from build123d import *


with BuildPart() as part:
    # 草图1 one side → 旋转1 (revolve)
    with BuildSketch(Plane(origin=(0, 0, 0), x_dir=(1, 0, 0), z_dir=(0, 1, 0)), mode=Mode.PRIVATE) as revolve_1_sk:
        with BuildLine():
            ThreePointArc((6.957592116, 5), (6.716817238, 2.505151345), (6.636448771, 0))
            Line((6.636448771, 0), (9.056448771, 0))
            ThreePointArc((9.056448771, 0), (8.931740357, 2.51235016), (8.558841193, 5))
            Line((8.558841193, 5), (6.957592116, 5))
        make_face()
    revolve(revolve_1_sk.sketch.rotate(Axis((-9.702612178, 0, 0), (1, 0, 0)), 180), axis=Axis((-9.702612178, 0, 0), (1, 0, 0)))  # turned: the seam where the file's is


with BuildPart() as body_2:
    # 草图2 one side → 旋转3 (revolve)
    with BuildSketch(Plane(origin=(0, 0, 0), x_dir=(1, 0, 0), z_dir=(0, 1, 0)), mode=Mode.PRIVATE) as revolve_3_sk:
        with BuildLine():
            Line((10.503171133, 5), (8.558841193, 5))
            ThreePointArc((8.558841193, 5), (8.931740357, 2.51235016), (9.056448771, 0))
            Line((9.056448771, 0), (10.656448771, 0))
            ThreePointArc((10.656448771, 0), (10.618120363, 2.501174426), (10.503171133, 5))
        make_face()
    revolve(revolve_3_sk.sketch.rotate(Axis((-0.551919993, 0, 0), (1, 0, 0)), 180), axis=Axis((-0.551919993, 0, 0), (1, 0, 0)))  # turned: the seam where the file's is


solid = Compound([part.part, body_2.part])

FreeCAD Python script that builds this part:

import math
import FreeCAD as App
import Part
import Sketcher
from FreeCAD import Vector

doc = App.newDocument("Part")
body = doc.addObject("PartDesign::Body", "Body")

# Sketch on XZ plane
sketch1 = doc.addObject("Sketcher::SketchObject", "Sketch")
body.addObject(sketch1)
sketch1.AttachmentSupport = (doc.XZ_Plane, [""])
sketch1.MapMode = "FlatFace"
sketch1.addGeometry([
    Part.ArcOfCircle(Part.Circle(Vector(45.7, 0, 0), Vector(0, 0, 1), 39.1), math.radians(180), math.radians(187.35)),
    Part.LineSegment(Vector(6.6, 0, 0), Vector(9.1, 0, 0)),
    Part.ArcOfCircle(Part.Circle(Vector(-16.3, 0, 0), Vector(0, 0, 1), 25.4), math.radians(-11.37), math.radians(0)),
    Part.LineSegment(Vector(8.6, -5, 0), Vector(7, -5, 0)),
], False)
sketch1.addConstraint([
    Sketcher.Constraint("Coincident", 0, 1, 1, 1),
    Sketcher.Constraint("Coincident", 1, 2, 2, 2),
    Sketcher.Constraint("Coincident", 2, 1, 3, 1),
    Sketcher.Constraint("Coincident", 3, 2, 0, 2),
    Sketcher.Constraint("Horizontal", 1),
    Sketcher.Constraint("Horizontal", 3),
    Sketcher.Constraint("PointOnObject", 0, 3, -1),
    Sketcher.Constraint("PointOnObject", 2, 3, -1),
    Sketcher.Constraint("PointOnObject", 0, 1, -1),
    Sketcher.Constraint("DistanceY", 2, 1, -1, 1, 5.0),
    Sketcher.Constraint("Radius", 0, 39.084),
    Sketcher.Constraint("Radius", 2, 25.369),
    Sketcher.Constraint("DistanceX", 1, 1, 1, 2, 2.42),
    Sketcher.Constraint("DistanceX", -1, 1, 0, 3, 45.720449),
])
revolution = doc.addObject("PartDesign::Revolution", "Revolution")
body.addObject(revolution)
revolution.Profile = sketch1
revolution.ReferenceAxis = (sketch1, ["H_Axis"])
revolution.Angle = 360
body2 = doc.addObject("PartDesign::Body", "Body001")

# Sketch on XZ plane
sketch2 = doc.addObject("Sketcher::SketchObject", "Sketch001")
body2.addObject(sketch2)
sketch2.AttachmentSupport = (doc.getObject("XZ_Plane001"), [""])
sketch2.MapMode = "FlatFace"
sketch2.addGeometry([
    Part.LineSegment(Vector(10.5, -5, 0), Vector(8.6, -5, 0)),
    Part.ArcOfCircle(Part.Circle(Vector(-16.3, 0, 0), Vector(0, 0, 1), 25.4), math.radians(-11.37), math.radians(0)),
    Part.LineSegment(Vector(9.1, 0, 0), Vector(10.7, 0, 0)),
    Part.ArcOfCircle(Part.Circle(Vector(-71, 0, 0), Vector(0, 0, 1), 81.6), math.radians(-3.51), math.radians(0)),
], False)
sketch2.addConstraint([
    Sketcher.Constraint("Coincident", 0, 2, 1, 1),
    Sketcher.Constraint("Coincident", 1, 2, 2, 1),
    Sketcher.Constraint("Coincident", 2, 2, 3, 2),
    Sketcher.Constraint("Coincident", 3, 1, 0, 1),
    Sketcher.Constraint("Horizontal", 0),
    Sketcher.Constraint("Horizontal", 2),
    Sketcher.Constraint("PointOnObject", 1, 3, -1),
    Sketcher.Constraint("PointOnObject", 3, 3, -1),
    Sketcher.Constraint("PointOnObject", 1, 2, -1),
    Sketcher.Constraint("DistanceX", 2, 1, 2, 2, 1.6),
    Sketcher.Constraint("DistanceY", 0, 2, -1, 1, 5.0),
    Sketcher.Constraint("Radius", 1, 25.369),
    Sketcher.Constraint("Radius", 3, 81.628),
    Sketcher.Constraint("DistanceX", 1, 3, -1, 1, 16.312551),
])
revolution2 = doc.addObject("PartDesign::Revolution", "Revolution001")
body2.addObject(revolution2)
revolution2.Profile = sketch2
revolution2.ReferenceAxis = (sketch2, ["H_Axis"])
revolution2.Angle = 360

doc.recompute()
